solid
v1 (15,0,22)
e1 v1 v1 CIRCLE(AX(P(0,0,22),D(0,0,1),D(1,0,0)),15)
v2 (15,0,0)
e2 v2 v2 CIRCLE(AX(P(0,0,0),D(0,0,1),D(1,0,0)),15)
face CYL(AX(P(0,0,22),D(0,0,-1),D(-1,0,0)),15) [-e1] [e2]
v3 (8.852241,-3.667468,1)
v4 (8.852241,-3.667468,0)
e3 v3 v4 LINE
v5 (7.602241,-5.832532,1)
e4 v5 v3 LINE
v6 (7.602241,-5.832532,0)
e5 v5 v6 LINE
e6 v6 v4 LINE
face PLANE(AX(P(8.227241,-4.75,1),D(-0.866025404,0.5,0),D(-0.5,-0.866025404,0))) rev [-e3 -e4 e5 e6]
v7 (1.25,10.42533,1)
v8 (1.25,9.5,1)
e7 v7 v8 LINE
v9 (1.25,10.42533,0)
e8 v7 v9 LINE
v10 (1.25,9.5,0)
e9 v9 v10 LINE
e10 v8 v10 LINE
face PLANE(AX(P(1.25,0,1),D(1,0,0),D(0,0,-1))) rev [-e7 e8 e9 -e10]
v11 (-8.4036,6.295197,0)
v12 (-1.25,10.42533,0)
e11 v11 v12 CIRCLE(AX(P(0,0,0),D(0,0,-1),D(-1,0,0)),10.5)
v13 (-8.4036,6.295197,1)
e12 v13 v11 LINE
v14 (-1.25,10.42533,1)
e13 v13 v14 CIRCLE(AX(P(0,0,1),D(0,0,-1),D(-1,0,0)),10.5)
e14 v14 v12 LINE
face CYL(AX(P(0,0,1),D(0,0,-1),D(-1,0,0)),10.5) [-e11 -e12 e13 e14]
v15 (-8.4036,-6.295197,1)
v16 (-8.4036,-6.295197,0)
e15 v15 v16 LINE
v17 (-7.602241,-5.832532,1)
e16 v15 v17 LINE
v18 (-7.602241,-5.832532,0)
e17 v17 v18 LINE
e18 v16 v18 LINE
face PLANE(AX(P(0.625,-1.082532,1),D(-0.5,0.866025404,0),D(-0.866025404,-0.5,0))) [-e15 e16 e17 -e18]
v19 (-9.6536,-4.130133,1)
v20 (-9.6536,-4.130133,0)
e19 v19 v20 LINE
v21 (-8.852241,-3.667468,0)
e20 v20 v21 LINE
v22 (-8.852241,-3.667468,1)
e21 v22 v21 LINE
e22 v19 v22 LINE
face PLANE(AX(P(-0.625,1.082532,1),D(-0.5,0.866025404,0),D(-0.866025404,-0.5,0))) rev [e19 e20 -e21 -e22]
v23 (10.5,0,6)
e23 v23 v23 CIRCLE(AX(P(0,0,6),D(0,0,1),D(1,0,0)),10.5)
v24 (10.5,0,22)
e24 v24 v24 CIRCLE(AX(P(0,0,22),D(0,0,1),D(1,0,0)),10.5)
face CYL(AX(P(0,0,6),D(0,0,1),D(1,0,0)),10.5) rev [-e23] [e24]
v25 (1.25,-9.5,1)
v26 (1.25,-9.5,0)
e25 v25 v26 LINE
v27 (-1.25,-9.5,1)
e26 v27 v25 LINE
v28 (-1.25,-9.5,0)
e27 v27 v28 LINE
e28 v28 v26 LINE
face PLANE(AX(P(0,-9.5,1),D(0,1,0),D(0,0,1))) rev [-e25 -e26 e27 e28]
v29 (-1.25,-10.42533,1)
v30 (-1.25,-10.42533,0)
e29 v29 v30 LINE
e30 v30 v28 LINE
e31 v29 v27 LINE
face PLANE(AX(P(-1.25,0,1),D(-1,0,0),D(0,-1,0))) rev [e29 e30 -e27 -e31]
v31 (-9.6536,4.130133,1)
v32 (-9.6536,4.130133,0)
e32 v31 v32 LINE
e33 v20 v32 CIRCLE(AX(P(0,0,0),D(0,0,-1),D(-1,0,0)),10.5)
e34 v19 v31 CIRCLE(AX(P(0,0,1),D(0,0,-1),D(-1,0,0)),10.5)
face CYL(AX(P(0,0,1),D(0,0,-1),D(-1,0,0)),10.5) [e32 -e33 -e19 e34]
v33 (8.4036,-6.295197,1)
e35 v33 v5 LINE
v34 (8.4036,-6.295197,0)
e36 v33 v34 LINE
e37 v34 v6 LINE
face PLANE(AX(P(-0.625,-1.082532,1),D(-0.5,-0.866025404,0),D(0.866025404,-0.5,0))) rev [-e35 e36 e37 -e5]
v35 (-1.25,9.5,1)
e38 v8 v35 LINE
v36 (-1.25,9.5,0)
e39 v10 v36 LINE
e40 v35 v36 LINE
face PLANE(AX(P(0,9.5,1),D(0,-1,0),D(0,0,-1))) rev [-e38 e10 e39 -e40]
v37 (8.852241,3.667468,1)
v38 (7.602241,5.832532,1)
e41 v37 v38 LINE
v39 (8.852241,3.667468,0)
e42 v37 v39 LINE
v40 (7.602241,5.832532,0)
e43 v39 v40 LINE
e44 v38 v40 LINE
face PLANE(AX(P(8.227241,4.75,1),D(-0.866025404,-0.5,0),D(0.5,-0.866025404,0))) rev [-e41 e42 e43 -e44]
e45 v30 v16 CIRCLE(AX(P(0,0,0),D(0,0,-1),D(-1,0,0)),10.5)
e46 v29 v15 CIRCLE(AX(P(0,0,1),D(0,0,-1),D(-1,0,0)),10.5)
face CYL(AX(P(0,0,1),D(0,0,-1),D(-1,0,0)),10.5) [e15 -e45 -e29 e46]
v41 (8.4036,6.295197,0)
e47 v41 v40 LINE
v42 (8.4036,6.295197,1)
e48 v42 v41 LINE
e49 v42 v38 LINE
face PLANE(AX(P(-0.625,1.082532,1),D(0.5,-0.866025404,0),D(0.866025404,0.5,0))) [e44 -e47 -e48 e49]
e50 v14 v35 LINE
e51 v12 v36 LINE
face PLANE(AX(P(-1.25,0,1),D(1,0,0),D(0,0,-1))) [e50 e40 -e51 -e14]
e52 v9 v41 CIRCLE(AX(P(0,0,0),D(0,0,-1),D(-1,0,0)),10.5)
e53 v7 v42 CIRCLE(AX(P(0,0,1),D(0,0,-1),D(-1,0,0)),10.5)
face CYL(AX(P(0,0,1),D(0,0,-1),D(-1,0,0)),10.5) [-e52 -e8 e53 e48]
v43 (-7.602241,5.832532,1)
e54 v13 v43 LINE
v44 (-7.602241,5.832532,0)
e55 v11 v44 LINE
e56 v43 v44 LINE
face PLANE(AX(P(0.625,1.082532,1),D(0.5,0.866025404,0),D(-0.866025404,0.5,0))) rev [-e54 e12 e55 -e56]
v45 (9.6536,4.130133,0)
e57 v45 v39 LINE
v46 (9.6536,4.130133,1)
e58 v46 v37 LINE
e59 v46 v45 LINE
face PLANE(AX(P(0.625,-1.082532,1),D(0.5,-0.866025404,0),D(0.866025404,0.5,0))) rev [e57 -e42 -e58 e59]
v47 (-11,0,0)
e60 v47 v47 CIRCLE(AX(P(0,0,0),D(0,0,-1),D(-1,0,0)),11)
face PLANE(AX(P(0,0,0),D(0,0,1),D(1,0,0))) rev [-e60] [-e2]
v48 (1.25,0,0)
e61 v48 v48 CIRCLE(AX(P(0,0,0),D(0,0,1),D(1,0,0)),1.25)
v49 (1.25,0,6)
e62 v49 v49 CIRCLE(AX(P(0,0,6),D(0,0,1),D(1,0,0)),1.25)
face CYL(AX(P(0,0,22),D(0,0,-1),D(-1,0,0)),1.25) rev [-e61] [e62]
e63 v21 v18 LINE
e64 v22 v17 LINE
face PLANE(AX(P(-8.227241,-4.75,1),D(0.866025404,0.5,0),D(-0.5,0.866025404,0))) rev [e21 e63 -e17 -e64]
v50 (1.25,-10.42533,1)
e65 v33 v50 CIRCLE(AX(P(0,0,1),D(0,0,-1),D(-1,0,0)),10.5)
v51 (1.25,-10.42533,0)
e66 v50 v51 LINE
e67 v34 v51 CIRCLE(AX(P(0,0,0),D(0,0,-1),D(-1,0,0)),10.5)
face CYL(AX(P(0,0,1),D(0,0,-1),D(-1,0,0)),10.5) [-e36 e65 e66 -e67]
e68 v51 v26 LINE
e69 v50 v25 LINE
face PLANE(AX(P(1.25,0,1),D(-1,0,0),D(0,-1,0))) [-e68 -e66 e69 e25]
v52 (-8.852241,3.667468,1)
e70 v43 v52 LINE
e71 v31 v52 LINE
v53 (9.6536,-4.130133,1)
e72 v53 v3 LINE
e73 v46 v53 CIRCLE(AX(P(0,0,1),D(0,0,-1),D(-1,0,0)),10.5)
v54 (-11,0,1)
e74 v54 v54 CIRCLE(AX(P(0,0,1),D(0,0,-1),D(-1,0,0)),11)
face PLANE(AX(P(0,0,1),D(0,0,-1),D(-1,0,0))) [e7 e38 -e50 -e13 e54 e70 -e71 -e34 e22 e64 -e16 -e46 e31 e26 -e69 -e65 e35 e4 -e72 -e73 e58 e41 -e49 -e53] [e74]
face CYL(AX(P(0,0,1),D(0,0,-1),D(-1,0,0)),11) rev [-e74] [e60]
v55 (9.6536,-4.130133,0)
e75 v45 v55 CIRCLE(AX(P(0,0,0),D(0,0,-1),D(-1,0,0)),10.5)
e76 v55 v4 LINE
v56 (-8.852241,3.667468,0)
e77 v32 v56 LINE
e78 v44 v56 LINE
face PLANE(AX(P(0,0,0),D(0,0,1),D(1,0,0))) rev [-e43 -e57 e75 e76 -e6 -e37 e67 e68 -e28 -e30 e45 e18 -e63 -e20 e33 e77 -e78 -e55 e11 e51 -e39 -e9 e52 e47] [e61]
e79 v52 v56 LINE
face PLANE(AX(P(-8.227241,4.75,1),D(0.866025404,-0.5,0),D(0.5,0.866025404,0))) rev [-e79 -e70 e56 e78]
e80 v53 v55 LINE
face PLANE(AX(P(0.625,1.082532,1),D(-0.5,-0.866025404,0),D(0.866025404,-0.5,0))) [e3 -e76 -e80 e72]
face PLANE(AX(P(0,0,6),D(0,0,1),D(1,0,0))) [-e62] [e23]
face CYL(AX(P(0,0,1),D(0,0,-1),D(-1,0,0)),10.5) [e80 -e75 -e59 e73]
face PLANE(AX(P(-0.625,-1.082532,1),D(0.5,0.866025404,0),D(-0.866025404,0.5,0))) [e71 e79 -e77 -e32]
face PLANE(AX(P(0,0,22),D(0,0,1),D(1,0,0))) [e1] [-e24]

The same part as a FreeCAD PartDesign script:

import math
import FreeCAD as App
import Part
import Sketcher

V = App.Vector
Q = App.Units.Quantity

doc = App.newDocument("Part")
body = doc.addObject("PartDesign::Body", "Body")

# Sketch on XY plane
sketch1 = body.newObject("Sketcher::SketchObject", "Sketch")
sketch1.AttachmentSupport = (doc.getObject("XY_Plane"), [""])
sketch1.MapMode = "FlatFace"
sketch1.addGeometry(Part.Circle(V(0, 0, 0), V(0, 0, 1), 15), False)
sketch1.addConstraint(Sketcher.Constraint("Coincident", 0, 3, -1, 1))
sketch1.addConstraint(Sketcher.Constraint("Diameter", 0, 30.0))
pad1 = body.newObject("PartDesign::Pad", "Pad")
pad1.Profile = sketch1
pad1.Length = 22

# Sketch on XY plane
sketch2 = body.newObject("Sketcher::SketchObject", "Sketch001")
sketch2.AttachmentSupport = (doc.getObject("XY_Plane"), [""])
sketch2.MapMode = "FlatFace"
sketch2.AttachmentOffset = App.Placement(V(0, 0, 22), App.Rotation())
sketch2.addGeometry(Part.Circle(V(0, 0, 0), V(0, 0, 1), 10.5), False)
sketch2.addConstraint(Sketcher.Constraint("Coincident", 0, 3, -1, 1))
sketch2.addConstraint(Sketcher.Constraint("Diameter", 0, 21.0))
pocket1 = body.newObject("PartDesign::Pocket", "Pocket")
pocket1.Profile = sketch2
pocket1.Length = 16

# Sketch on XY plane
sketch3 = body.newObject("Sketcher::SketchObject", "Sketch002")
sketch3.AttachmentSupport = (doc.getObject("XY_Plane"), [""])
sketch3.MapMode = "FlatFace"
sketch3.AttachmentOffset = App.Placement(V(0, 0, 1), App.Rotation())
sketch3.addGeometry(Part.ArcOfCircle(Part.Circle(V(0, 0, 0), V(0, 0, 1), 10.5), math.radians(83.162859), math.radians(96.837141)), False)
sketch3.addGeometry(Part.LineSegment(V(1.25, 10.42533, 0), V(1.25, 9.5, 0)), False)
sketch3.addGeometry(Part.LineSegment(V(1.25, 9.5, 0), V(-1.25, 9.5, 0)), False)
sketch3.addGeometry(Part.LineSegment(V(-1.25, 9.5, 0), V(-1.25, 10.42533, 0)), False)
sketch3.addGeometry(Part.LineSegment(V(7.602241, 5.832532, 0), V(8.4036, 6.295197, 0)), False)
sketch3.addGeometry(Part.ArcOfCircle(Part.Circle(V(0, 0, 0), V(0, 0, 1), 10.5), math.radians(23.162859), math.radians(36.837141)), False)
sketch3.addGeometry(Part.LineSegment(V(9.6536, 4.130133, 0), V(8.852241, 3.667468, 0)), False)
sketch3.addGeometry(Part.LineSegment(V(8.852241, 3.667468, 0), V(7.602241, 5.832532, 0)), False)
sketch3.addGeometry(Part.ArcOfCircle(Part.Circle(V(0, 0, 0), V(0, 0, 1), 10.5), math.radians(143.162859), math.radians(156.837141)), False)
sketch3.addGeometry(Part.LineSegment(V(-8.4036, 6.295197, 0), V(-7.602241, 5.832532, 0)), False)
sketch3.addGeometry(Part.LineSegment(V(-7.602241, 5.832532, 0), V(-8.852241, 3.667468, 0)), False)
sketch3.addGeometry(Part.LineSegment(V(-8.852241, 3.667468, 0), V(-9.6536, 4.130133, 0)), False)
sketch3.addGeometry(Part.ArcOfCircle(Part.Circle(V(0, 0, 0), V(0, 0, 1), 10.5), math.radians(-156.837141), math.radians(-143.162859)), False)
sketch3.addGeometry(Part.LineSegment(V(-9.6536, -4.130133, 0), V(-8.852241, -3.667468, 0)), False)
sketch3.addGeometry(Part.LineSegment(V(-8.852241, -3.667468, 0), V(-7.602241, -5.832532, 0)), False)
sketch3.addGeometry(Part.LineSegment(V(-7.602241, -5.832532, 0), V(-8.4036, -6.295197, 0)), False)
sketch3.addGeometry(Part.LineSegment(V(1.25, -9.5, 0), V(1.25, -10.42533, 0)), False)
sketch3.addGeometry(Part.ArcOfCircle(Part.Circle(V(0, 0, 0), V(0, 0, 1), 10.5), math.radians(-96.837141), math.radians(-83.162859)), False)
sketch3.addGeometry(Part.LineSegment(V(-1.25, -10.42533, 0), V(-1.25, -9.5, 0)), False)
sketch3.addGeometry(Part.LineSegment(V(-1.25, -9.5, 0), V(1.25, -9.5, 0)), False)
sketch3.addGeometry(Part.LineSegment(V(8.852241, -3.667468, 0), V(9.6536, -4.130133, 0)), False)
sketch3.addGeometry(Part.ArcOfCircle(Part.Circle(V(0, 0, 0), V(0, 0, 1), 10.5), math.radians(-36.837141), math.radians(-23.162859)), False)
sketch3.addGeometry(Part.LineSegment(V(8.4036, -6.295197, 0), V(7.602241, -5.832532, 0)), False)
sketch3.addGeometry(Part.LineSegment(V(7.602241, -5.832532, 0), V(8.852241, -3.667468, 0)), False)
sketch3.addConstraint(Sketcher.Constraint("Coincident", 0, 1, 1, 1))
sketch3.addConstraint(Sketcher.Constraint("Coincident", 1, 2, 2, 1))
sketch3.addConstraint(Sketcher.Constraint("Coincident", 2, 2, 3, 1))
sketch3.addConstraint(Sketcher.Constraint("Coincident", 3, 2, 0, 2))
sketch3.addConstraint(Sketcher.Constraint("Coincident", 4, 2, 5, 2))
sketch3.addConstraint(Sketcher.Constraint("Coincident", 5, 1, 6, 1))
sketch3.addConstraint(Sketcher.Constraint("Coincident", 6, 2, 7, 1))
sketch3.addConstraint(Sketcher.Constraint("Coincident", 7, 2, 4, 1))
sketch3.addConstraint(Sketcher.Constraint("Coincident", 8, 1, 9, 1))
sketch3.addConstraint(Sketcher.Constraint("Coincident", 9, 2, 10, 1))
sketch3.addConstraint(Sketcher.Constraint("Coincident", 10, 2, 11, 1))
sketch3.addConstraint(Sketcher.Constraint("Coincident", 11, 2, 8, 2))
sketch3.addConstraint(Sketcher.Constraint("Coincident", 12, 1, 13, 1))
sketch3.addConstraint(Sketcher.Constraint("Coincident", 13, 2, 14, 1))
sketch3.addConstraint(Sketcher.Constraint("Coincident", 14, 2, 15, 1))
sketch3.addConstraint(Sketcher.Constraint("Coincident", 15, 2, 12, 2))
sketch3.addConstraint(Sketcher.Constraint("Coincident", 16, 2, 17, 2))
sketch3.addConstraint(Sketcher.Constraint("Coincident", 17, 1, 18, 1))
sketch3.addConstraint(Sketcher.Constraint("Coincident", 18, 2, 19, 1))
sketch3.addConstraint(Sketcher.Constraint("Coincident", 19, 2, 16, 1))
sketch3.addConstraint(Sketcher.Constraint("Coincident", 20, 2, 21, 2))
sketch3.addConstraint(Sketcher.Constraint("Coincident", 21, 1, 22, 1))
sketch3.addConstraint(Sketcher.Constraint("Coincident", 22, 2, 23, 1))
sketch3.addConstraint(Sketcher.Constraint("Coincident", 23, 2, 20, 1))
sketch3.addConstraint(Sketcher.Constraint("Vertical", 1))
sketch3.addConstraint(Sketcher.Constraint("Horizontal", 2))
sketch3.addConstraint(Sketcher.Constraint("Vertical", 3))
sketch3.addConstraint(Sketcher.Constraint("Vertical", 16))
sketch3.addConstraint(Sketcher.Constraint("Vertical", 18))
sketch3.addConstraint(Sketcher.Constraint("Horizontal", 19))
sketch3.addConstraint(Sketcher.Constraint("Coincident", 0, 3, -1, 1))
sketch3.addConstraint(Sketcher.Constraint("Coincident", 5, 3, -1, 1))
sketch3.addConstraint(Sketcher.Constraint("Coincident", 8, 3, -1, 1))
sketch3.addConstraint(Sketcher.Constraint("Coincident", 12, 3, -1, 1))
sketch3.addConstraint(Sketcher.Constraint("Coincident", 17, 3, -1, 1))
sketch3.addConstraint(Sketcher.Constraint("Coincident", 21, 3, -1, 1))
sketch3.addConstraint(Sketcher.Constraint("Equal", 0, 5))
sketch3.addConstraint(Sketcher.Constraint("Equal", 5, 8))
sketch3.addConstraint(Sketcher.Constraint("Equal", 8, 12))
sketch3.addConstraint(Sketcher.Constraint("Equal", 12, 17))
sketch3.addConstraint(Sketcher.Constraint("Equal", 17, 21))
sketch3.addConstraint(Sketcher.Constraint("Symmetric", 6, 2, 13, 2, -1, 1))
sketch3.addConstraint(Sketcher.Constraint("Symmetric", 7, 2, 14, 2, -1, 1))
sketch3.addConstraint(Sketcher.Constraint("Symmetric", 1, 2, 18, 2, -1, 1))
sketch3.addConstraint(Sketcher.Constraint("Symmetric", 9, 2, 22, 2, -1, 1))
sketch3.addConstraint(Sketcher.Constraint("Symmetric", 10, 2, 23, 2, -1, 1))
sketch3.addConstraint(Sketcher.Constraint("Symmetric", 7, 2, 9, 2, -2))
sketch3.addConstraint(Sketcher.Constraint("Symmetric", 6, 2, 10, 2, -2))
sketch3.addConstraint(Sketcher.Constraint("Parallel", 4, 6))
sketch3.addConstraint(Sketcher.Constraint("Perpendicular", 6, 7))
sketch3.addConstraint(Sketcher.Constraint("Perpendicular", 9, 10))
sketch3.addConstraint(Sketcher.Constraint("Perpendicular", 10, 11))
sketch3.addConstraint(Sketcher.Constraint("Perpendicular", 7, 13))
sketch3.addConstraint(Sketcher.Constraint("Perpendicular", 14, 15))
sketch3.addConstraint(Sketcher.Constraint("Parallel", 11, 20))
sketch3.addConstraint(Sketcher.Constraint("Parallel", 20, 22))
sketch3.addConstraint(Sketcher.Constraint("Horizontal", 0, 1, 3, 2))
sketch3.addConstraint(Sketcher.Constraint("Horizontal", 16, 2, 17, 1))
sketch3.addConstraint(Sketcher.Constraint("Equal", 4, 6))
sketch3.addConstraint(Sketcher.Constraint("Radius", 0, 10.5))
sketch3.addConstraint(Sketcher.Constraint("Angle", 4, Q("30 deg")))
sketch3.addConstraint(Sketcher.Constraint("DistanceX", 2, 2, 2, 1, 2.5))
sketch3.addConstraint(Sketcher.Constraint("Distance", 7, 2.5))
sketch3.addConstraint(Sketcher.Constraint("DistanceY", -1, 1, 1, 2, 9.5))
sketch3.addConstraint(Sketcher.Constraint("DistanceY", 14, 2, 10, 2, 9.5))
pocket2 = body.newObject("PartDesign::Pocket", "Pocket001")
pocket2.Profile = sketch3
pocket2.Length = 1

# Sketch on XY plane
sketch4 = body.newObject("Sketcher::SketchObject", "Sketch003")
sketch4.AttachmentSupport = (doc.getObject("XY_Plane"), [""])
sketch4.MapMode = "FlatFace"
sketch4.AttachmentOffset = App.Placement(V(0, 0, 1), App.Rotation())
sketch4.addGeometry(Part.Circle(V(0, 0, 0), V(0, 0, 1), 11), False)
sketch4.addGeometry(Part.Circle(V(0, 0, 0), V(0, 0, 1), 10.5), False)
sketch4.addConstraint(Sketcher.Constraint("Coincident", 0, 3, -1, 1))
sketch4.addConstraint(Sketcher.Constraint("Coincident", 1, 3, -1, 1))
sketch4.addConstraint(Sketcher.Constraint("Diameter", 0, 22.0))
sketch4.addConstraint(Sketcher.Constraint("Diameter", 1, 21.0))
pocket3 = body.newObject("PartDesign::Pocket", "Pocket002")
pocket3.Profile = sketch4
pocket3.Length = 1

# Sketch on XY plane
sketch5 = body.newObject("Sketcher::SketchObject", "Sketch004")
sketch5.AttachmentSupport = (doc.getObject("XY_Plane"), [""])
sketch5.MapMode = "FlatFace"
sketch5.addGeometry(Part.Circle(V(0, 0, 0), V(0, 0, 1), 1.25), False)
sketch5.addConstraint(Sketcher.Constraint("Coincident", 0, 3, -1, 1))
sketch5.addConstraint(Sketcher.Constraint("Diameter", 0, 2.5))
pocket4 = body.newObject("PartDesign::Pocket", "Pocket003")
pocket4.Profile = sketch5
pocket4.Type = "ThroughAll"
pocket4.Midplane = True

doc.recompute()
